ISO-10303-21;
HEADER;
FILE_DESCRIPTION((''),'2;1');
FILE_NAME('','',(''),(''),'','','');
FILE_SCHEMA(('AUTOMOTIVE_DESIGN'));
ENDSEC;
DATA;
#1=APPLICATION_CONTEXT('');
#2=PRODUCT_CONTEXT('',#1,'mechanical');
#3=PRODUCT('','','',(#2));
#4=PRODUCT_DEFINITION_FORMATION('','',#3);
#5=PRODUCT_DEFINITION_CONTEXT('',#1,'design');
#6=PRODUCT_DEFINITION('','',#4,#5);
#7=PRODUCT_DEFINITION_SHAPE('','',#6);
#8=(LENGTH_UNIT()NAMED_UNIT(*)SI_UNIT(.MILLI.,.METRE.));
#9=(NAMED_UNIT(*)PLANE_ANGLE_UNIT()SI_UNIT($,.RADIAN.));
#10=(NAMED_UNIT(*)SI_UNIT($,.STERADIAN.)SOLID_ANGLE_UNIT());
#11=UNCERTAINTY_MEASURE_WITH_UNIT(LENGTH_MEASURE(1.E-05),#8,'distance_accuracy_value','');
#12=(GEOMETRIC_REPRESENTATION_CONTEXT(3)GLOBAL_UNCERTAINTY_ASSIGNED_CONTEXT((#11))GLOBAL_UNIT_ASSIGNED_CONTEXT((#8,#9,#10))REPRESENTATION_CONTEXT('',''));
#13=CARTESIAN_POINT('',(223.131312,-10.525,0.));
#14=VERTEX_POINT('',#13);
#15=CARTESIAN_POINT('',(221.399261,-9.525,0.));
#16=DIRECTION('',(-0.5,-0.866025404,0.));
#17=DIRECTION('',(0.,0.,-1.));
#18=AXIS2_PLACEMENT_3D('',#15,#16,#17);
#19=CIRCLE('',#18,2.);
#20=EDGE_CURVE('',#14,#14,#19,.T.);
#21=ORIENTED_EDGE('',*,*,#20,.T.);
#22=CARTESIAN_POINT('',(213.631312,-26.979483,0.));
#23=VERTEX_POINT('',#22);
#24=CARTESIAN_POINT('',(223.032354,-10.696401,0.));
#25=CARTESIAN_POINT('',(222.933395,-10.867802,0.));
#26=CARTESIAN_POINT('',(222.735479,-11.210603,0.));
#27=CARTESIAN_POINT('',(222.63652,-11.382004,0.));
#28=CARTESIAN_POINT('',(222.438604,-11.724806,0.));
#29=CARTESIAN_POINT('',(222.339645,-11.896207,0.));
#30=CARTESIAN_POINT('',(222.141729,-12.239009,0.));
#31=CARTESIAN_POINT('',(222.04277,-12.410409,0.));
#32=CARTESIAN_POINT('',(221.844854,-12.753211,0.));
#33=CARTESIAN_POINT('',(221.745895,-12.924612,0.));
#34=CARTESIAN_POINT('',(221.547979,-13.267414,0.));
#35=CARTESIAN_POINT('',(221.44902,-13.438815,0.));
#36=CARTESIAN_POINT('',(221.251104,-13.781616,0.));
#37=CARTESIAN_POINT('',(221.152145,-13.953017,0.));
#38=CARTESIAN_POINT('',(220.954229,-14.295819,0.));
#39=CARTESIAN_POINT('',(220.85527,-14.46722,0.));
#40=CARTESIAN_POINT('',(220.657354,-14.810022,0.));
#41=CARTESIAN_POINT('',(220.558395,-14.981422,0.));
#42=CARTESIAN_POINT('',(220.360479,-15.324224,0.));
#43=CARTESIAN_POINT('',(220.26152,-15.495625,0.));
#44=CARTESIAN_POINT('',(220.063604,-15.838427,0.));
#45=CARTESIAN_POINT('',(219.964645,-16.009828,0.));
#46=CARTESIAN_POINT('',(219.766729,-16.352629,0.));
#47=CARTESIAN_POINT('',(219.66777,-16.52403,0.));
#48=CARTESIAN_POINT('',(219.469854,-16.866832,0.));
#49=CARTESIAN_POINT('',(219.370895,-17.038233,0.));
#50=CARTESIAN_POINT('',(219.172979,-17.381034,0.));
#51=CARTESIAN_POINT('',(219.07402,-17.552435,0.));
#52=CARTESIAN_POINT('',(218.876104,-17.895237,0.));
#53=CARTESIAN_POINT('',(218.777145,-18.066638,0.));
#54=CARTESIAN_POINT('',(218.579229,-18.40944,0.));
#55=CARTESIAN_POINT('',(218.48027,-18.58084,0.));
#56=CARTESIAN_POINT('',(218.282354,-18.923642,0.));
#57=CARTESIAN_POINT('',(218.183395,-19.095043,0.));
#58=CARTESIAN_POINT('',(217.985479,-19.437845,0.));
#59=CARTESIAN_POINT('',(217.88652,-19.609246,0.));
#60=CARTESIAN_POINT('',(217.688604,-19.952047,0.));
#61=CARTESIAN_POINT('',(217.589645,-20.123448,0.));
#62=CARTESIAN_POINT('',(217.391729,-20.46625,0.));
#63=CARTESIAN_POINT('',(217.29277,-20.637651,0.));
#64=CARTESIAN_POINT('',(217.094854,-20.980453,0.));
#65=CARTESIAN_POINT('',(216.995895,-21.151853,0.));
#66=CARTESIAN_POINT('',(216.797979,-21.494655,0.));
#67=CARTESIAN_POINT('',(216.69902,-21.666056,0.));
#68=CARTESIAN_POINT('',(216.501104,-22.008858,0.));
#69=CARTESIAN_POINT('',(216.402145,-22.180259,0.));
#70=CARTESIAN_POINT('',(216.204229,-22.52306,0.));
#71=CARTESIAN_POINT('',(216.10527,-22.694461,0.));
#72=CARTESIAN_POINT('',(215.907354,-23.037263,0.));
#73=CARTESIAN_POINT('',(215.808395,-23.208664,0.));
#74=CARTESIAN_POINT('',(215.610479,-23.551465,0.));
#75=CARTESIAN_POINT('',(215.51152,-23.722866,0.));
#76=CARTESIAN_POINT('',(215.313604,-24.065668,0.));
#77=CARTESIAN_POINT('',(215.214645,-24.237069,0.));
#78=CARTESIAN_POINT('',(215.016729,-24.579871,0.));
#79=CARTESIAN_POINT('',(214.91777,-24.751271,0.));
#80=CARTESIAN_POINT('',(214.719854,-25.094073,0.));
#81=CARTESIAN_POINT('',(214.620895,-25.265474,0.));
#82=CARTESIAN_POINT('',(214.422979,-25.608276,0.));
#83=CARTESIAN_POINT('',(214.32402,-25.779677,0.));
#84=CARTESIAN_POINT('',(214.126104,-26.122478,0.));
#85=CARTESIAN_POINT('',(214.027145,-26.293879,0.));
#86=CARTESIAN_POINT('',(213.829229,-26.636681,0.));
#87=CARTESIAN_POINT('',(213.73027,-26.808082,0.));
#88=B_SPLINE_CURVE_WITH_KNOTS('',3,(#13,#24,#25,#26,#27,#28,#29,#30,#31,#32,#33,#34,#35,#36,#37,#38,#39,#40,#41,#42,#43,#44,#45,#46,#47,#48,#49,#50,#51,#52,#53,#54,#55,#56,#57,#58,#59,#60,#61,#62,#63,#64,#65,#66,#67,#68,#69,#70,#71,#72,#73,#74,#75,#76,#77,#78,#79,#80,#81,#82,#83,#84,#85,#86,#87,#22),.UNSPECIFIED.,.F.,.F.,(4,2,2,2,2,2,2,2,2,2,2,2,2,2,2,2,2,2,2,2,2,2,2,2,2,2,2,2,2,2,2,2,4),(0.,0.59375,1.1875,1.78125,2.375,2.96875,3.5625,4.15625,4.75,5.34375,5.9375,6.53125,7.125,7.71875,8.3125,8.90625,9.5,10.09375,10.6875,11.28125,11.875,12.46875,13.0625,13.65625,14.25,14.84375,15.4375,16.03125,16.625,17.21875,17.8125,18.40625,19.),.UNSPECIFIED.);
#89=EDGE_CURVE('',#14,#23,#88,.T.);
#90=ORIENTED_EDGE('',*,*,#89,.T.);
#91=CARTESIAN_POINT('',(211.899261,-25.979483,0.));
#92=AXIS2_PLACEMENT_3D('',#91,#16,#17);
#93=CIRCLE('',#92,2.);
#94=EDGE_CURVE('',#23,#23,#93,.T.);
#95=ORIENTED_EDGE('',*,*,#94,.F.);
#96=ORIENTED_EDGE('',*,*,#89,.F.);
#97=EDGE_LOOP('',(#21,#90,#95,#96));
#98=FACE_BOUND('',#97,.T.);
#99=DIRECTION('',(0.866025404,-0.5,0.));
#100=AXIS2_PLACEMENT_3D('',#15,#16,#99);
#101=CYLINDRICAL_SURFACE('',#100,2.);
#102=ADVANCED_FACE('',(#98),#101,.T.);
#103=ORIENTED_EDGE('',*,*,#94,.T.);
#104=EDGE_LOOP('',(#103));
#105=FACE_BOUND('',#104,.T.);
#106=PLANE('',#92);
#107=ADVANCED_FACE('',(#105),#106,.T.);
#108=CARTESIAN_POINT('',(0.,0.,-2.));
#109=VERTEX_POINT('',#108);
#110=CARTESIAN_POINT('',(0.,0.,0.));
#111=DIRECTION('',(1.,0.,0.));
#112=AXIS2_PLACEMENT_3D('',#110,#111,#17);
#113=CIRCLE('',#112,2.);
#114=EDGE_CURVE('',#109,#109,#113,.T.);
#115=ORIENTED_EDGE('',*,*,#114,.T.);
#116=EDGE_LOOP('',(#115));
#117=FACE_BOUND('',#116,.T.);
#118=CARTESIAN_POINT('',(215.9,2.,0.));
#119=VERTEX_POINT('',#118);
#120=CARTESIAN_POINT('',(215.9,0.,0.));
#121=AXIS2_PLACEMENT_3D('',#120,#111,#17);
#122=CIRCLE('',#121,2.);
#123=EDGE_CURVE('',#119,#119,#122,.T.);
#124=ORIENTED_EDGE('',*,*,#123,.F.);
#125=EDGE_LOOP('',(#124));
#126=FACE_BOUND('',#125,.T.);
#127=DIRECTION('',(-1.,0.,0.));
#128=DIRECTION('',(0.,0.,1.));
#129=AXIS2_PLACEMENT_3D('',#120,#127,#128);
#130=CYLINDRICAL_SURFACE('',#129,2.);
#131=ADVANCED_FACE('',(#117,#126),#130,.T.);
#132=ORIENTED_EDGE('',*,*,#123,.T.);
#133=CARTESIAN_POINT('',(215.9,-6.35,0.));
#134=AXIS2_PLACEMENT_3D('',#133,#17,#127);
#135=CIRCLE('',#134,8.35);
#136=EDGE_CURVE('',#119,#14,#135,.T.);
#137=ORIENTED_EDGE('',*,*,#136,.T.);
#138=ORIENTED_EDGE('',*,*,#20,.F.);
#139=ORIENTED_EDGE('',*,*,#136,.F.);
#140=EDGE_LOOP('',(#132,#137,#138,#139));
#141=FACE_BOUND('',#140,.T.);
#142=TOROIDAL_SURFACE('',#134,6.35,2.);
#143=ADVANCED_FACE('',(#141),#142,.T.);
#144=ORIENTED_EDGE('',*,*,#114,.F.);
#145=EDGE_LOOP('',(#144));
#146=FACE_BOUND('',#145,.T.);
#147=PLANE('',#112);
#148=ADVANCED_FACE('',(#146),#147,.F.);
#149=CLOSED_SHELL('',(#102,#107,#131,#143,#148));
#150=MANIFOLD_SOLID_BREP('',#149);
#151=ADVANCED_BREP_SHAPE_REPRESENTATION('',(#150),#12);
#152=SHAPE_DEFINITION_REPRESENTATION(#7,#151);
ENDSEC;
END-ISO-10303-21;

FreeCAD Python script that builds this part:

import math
import FreeCAD as App
import Part
import Sketcher
Q = App.Units.Quantity

doc = App.newDocument("Part")
body = doc.addObject("PartDesign::Body", "Body")

# Sketch on YZ plane
sketch1 = body.newObject("Sketcher::SketchObject", "Sketch")
sketch1.AttachmentSupport = (doc.getObject("YZ_Plane"), [""])
sketch1.MapMode = "FlatFace"
sketch1.addGeometry(Part.Circle(App.Vector(0, 0, 0), App.Vector(0, 0, 1), 2), False)
sketch1.addConstraint([
    Sketcher.Constraint("Coincident", 0, 3, -1, 1),
    Sketcher.Constraint("Diameter", 0, Q("4 mm")),
])

# Sketch on XY plane
sketch2 = body.newObject("Sketcher::SketchObject", "Sketch001")
sketch2.AttachmentSupport = (doc.getObject("XY_Plane"), [""])
sketch2.MapMode = "FlatFace"
sketch2.addGeometry([
    Part.LineSegment(App.Vector(0, 0, 0), App.Vector(216, 0, 0)),
    Part.ArcOfCircle(Part.Circle(App.Vector(216, -6, 0), App.Vector(0, 0, 1), 6), math.radians(-30), math.radians(90)),
    Part.LineSegment(App.Vector(221, -10, 0), App.Vector(212, -26, 0)),
], False)
sketch2.addConstraint([
    Sketcher.Constraint("Tangent", 0, 2, 1, 2),
    Sketcher.Constraint("Tangent", 1, 1, 2, 1),
    Sketcher.Constraint("Horizontal", 0),
    Sketcher.Constraint("Coincident", 0, 1, -1, 1),
    Sketcher.Constraint("Angle", 2, Q("-120 deg")),
    Sketcher.Constraint("Radius", 1, Q("6.35 mm")),
    Sketcher.Constraint("Distance", 2, Q("19 mm")),
    Sketcher.Constraint("DistanceX", 0, 1, 0, 2, Q("215.9 mm")),
])
doc.recompute()

additivepipe = body.newObject("PartDesign::AdditivePipe", "AdditivePipe")
additivepipe.Profile = sketch1
additivepipe.Spine = (sketch2, ["Edge1", "Edge2", "Edge3"])

doc.recompute()
